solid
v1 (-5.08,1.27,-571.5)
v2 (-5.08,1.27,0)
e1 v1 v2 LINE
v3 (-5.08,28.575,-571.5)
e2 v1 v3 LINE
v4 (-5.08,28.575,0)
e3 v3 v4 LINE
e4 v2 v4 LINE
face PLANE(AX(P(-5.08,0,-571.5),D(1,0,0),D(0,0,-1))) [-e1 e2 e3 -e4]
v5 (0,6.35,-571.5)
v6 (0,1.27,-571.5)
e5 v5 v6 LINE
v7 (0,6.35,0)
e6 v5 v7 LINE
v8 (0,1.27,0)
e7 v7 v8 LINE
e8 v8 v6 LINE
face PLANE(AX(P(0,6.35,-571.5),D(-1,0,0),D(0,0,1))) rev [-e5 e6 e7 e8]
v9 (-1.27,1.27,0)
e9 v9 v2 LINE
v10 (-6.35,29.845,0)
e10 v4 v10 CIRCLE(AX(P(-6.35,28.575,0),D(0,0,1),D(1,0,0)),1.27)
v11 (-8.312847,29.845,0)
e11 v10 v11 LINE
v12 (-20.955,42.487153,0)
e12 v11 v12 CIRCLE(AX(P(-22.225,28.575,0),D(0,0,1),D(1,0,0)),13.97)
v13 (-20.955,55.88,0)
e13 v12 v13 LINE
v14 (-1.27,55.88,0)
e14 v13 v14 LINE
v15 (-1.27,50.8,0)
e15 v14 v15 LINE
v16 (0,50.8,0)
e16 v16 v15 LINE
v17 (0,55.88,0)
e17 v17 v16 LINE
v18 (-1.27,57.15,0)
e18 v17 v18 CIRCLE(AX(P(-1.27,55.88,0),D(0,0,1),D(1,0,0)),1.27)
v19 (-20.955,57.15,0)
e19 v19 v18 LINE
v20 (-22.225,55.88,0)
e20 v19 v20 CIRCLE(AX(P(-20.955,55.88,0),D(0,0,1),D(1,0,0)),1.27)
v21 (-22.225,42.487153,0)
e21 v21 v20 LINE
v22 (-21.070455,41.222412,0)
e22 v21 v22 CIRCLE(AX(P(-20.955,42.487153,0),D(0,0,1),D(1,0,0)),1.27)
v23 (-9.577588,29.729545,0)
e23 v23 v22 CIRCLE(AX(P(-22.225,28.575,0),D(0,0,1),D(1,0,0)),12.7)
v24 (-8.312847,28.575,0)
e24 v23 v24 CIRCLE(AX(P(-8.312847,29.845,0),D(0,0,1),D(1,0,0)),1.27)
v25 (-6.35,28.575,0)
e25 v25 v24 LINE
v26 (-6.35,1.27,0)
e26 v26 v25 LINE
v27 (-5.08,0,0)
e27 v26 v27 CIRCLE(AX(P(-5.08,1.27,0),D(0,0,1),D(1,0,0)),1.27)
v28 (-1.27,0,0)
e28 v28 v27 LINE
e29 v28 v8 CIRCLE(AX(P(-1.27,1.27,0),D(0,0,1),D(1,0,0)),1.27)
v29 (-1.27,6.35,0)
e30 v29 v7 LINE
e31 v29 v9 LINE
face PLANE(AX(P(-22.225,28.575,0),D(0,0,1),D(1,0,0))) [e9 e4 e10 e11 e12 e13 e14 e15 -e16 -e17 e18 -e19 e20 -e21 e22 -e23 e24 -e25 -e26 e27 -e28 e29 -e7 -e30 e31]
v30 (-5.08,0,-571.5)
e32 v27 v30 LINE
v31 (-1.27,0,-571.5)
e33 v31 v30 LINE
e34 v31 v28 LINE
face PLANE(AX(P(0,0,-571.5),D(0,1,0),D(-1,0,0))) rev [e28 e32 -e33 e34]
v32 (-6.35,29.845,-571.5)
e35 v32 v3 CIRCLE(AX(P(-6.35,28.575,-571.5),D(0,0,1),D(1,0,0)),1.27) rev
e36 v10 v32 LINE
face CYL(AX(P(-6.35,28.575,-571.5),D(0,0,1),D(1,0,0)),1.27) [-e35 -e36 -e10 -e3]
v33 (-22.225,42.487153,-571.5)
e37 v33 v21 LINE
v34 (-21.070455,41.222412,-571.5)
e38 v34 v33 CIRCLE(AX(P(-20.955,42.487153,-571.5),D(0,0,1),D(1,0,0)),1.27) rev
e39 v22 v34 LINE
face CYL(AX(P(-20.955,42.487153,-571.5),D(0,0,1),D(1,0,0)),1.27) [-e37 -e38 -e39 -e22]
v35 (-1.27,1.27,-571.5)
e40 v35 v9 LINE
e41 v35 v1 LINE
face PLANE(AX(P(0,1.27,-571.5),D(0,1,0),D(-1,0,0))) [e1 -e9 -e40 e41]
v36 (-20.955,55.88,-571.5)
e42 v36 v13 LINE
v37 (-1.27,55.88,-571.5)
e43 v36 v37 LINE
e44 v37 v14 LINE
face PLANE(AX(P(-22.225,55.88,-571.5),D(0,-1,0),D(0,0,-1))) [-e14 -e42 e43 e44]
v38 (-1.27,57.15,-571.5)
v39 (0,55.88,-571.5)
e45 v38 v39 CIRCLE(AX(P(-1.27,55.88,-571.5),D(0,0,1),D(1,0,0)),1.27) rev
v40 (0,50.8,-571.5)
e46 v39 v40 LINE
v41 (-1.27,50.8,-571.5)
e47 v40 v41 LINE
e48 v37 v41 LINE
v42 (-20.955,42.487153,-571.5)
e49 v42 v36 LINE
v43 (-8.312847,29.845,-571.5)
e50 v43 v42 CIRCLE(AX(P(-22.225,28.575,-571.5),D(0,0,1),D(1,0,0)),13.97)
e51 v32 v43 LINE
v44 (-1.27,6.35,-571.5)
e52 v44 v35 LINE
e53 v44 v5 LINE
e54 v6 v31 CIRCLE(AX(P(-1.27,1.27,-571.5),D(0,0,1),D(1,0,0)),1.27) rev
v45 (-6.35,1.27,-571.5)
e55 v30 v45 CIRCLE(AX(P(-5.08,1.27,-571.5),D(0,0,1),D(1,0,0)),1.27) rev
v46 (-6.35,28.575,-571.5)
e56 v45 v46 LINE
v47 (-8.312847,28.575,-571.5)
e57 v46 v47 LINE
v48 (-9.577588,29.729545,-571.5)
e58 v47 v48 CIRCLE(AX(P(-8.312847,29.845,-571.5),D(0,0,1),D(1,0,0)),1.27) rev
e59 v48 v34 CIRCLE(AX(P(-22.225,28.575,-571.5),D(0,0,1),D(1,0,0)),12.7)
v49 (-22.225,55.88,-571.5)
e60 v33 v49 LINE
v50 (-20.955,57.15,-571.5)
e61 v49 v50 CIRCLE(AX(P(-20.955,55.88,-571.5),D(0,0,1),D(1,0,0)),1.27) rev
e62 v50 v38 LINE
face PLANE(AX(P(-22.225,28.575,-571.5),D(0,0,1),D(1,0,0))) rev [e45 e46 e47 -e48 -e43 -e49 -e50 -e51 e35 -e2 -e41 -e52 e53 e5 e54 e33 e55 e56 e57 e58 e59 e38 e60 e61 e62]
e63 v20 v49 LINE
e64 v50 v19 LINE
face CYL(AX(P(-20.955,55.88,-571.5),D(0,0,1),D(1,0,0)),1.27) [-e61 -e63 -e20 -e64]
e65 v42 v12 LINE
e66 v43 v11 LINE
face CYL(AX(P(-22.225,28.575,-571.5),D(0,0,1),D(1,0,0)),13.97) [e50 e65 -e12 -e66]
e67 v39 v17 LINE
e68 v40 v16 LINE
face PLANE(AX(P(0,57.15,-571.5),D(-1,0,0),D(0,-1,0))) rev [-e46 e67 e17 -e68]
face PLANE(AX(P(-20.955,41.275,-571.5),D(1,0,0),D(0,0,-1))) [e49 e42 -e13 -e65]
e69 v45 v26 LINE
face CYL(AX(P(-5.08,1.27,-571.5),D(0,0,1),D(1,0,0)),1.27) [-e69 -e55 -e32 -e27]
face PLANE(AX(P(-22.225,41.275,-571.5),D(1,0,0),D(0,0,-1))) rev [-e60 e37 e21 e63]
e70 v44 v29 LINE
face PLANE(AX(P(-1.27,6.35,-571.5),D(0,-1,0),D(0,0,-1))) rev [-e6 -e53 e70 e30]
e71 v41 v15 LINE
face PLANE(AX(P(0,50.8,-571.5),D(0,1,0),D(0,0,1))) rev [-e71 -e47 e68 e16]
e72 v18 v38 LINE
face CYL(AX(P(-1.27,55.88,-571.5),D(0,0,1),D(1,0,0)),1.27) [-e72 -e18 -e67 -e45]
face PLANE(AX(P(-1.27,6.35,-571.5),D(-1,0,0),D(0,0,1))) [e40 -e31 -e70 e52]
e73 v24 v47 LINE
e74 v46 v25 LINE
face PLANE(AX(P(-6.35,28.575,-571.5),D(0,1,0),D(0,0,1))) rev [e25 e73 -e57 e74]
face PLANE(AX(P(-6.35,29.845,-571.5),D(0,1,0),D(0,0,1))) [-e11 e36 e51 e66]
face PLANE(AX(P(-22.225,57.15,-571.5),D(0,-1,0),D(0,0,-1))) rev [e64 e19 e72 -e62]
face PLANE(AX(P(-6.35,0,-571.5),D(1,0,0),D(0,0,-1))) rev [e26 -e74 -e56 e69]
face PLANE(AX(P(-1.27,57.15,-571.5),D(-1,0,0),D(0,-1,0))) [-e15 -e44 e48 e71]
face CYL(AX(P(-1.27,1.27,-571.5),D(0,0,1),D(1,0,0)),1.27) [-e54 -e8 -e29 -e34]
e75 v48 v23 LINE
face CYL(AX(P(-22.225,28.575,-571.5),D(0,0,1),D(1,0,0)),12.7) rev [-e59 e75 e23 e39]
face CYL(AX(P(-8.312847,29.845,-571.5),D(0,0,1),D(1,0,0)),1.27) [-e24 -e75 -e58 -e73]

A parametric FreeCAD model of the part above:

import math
import FreeCAD as App
import Part
import Sketcher

V = App.Vector
Q = App.Units.Quantity


def edges_at(feature, points):
    """Names of the edges that pass closest to the given points."""
    edges = feature.Shape.Edges
    near = lambda p: min(range(len(edges)), key=lambda i: edges[i].distToShape(Part.Vertex(*p))[0])
    return sorted({f"Edge{near(p) + 1}" for p in points})

doc = App.newDocument("Part")
body = doc.addObject("PartDesign::Body", "Body")

# Sketch on XY plane
sketch1 = body.newObject("Sketcher::SketchObject", "Sketch")
sketch1.AttachmentSupport = (doc.getObject("XY_Plane"), [""])
sketch1.MapMode = "FlatFace"
sketch1.addGeometry([
    Part.LineSegment(V(0, 0, 0), V(0, 6.35, 0)),  # 0
    Part.LineSegment(V(0, 6.35, 0), V(-1.27, 6.35, 0)),  # 1
    Part.LineSegment(V(-1.27, 6.35, 0), V(-1.27, 1.27, 0)),  # 2
    Part.LineSegment(V(-1.27, 1.27, 0), V(-5.08, 1.27, 0)),  # 3
    Part.LineSegment(V(-5.08, 1.27, 0), V(-5.08, 29.845, 0)),  # 4
    Part.LineSegment(V(-5.08, 29.845, 0), V(-8.312847, 29.845, 0)),  # 5
    Part.ArcOfCircle(Part.Circle(V(-22.225, 28.575, 0), V(0, 0, 1), 13.97), math.radians(5.215909), math.radians(84.784091)),  # 6
    Part.LineSegment(V(-20.955, 42.487153, 0), V(-20.955, 55.88, 0)),  # 7
    Part.LineSegment(V(-20.955, 55.88, 0), V(-1.27, 55.88, 0)),  # 8
    Part.LineSegment(V(-1.27, 55.88, 0), V(-1.27, 50.8, 0)),  # 9
    Part.LineSegment(V(-1.27, 50.8, 0), V(0, 50.8, 0)),  # 10
    Part.LineSegment(V(0, 50.8, 0), V(0, 57.15, 0)),  # 11
    Part.LineSegment(V(0, 57.15, 0), V(-22.225, 57.15, 0)),  # 12
    Part.LineSegment(V(-22.225, 57.15, 0), V(-22.225, 41.275, 0)),  # 13
    Part.ArcOfCircle(Part.Circle(V(-22.225, 28.575, 0), V(0, 0, 1), 12.7), math.radians(0), math.radians(90)),  # 14
    Part.LineSegment(V(-9.525, 28.575, 0), V(-6.35, 28.575, 0)),  # 15
    Part.LineSegment(V(-6.35, 28.575, 0), V(-6.35, 0, 0)),  # 16
    Part.LineSegment(V(-6.35, 0, 0), V(0, 0, 0)),  # 17
], False)
sketch1.addConstraint([
    Sketcher.Constraint("Coincident", 0, 2, 1, 1),
    Sketcher.Constraint("Coincident", 1, 2, 2, 1),
    Sketcher.Constraint("Coincident", 2, 2, 3, 1),
    Sketcher.Constraint("Coincident", 3, 2, 4, 1),
    Sketcher.Constraint("Coincident", 4, 2, 5, 1),
    Sketcher.Constraint("Coincident", 5, 2, 6, 1),
    Sketcher.Constraint("Coincident", 6, 2, 7, 1),
    Sketcher.Constraint("Coincident", 7, 2, 8, 1),
    Sketcher.Constraint("Coincident", 8, 2, 9, 1),
    Sketcher.Constraint("Coincident", 9, 2, 10, 1),
    Sketcher.Constraint("Coincident", 10, 2, 11, 1),
    Sketcher.Constraint("Coincident", 11, 2, 12, 1),
    Sketcher.Constraint("Coincident", 12, 2, 13, 1),
    Sketcher.Constraint("Coincident", 13, 2, 14, 2),
    Sketcher.Constraint("Coincident", 14, 1, 15, 1),
    Sketcher.Constraint("Coincident", 15, 2, 16, 1),
    Sketcher.Constraint("Coincident", 16, 2, 17, 1),
    Sketcher.Constraint("Coincident", 17, 2, 0, 1),
    Sketcher.Constraint("Vertical", 0),
    Sketcher.Constraint("Horizontal", 1),
    Sketcher.Constraint("Vertical", 2),
    Sketcher.Constraint("Horizontal", 3),
    Sketcher.Constraint("Vertical", 4),
    Sketcher.Constraint("Horizontal", 5),
    Sketcher.Constraint("Vertical", 7),
    Sketcher.Constraint("Horizontal", 8),
    Sketcher.Constraint("Vertical", 9),
    Sketcher.Constraint("Horizontal", 10),
    Sketcher.Constraint("Vertical", 11),
    Sketcher.Constraint("Horizontal", 12),
    Sketcher.Constraint("Vertical", 13),
    Sketcher.Constraint("Horizontal", 15),
    Sketcher.Constraint("Vertical", 16),
    Sketcher.Constraint("Horizontal", 17),
    Sketcher.Constraint("Coincident", 17, 2, -1, 1),
    Sketcher.Constraint("Coincident", 14, 3, 6, 3),
    Sketcher.Constraint("PointOnObject", 10, 2, -2),
    Sketcher.Constraint("Horizontal", 6, 3, 14, 1),
    Sketcher.Constraint("Vertical", 2, 2, 8, 2),
    Sketcher.Constraint("Vertical", 14, 3, 12, 2),
    Sketcher.Constraint("Equal", 17, 0),
    Sketcher.Constraint("Equal", 2, 9),
    Sketcher.Constraint("Equal", 0, 11),
    Sketcher.Constraint("Equal", 4, 16),
    Sketcher.Constraint("Radius", 14, Q("0.5 in")),
    Sketcher.Constraint("Radius", 6, Q("0.55 in")),
    Sketcher.Constraint("DistanceY", 2, 2, 2, 1, Q("0.2 in")),
    Sketcher.Constraint("DistanceY", -1, 1, 9, 2, Q("2 in")),
    Sketcher.Constraint("DistanceX", 1, 2, 1, 1, Q("0.05 in")),
    Sketcher.Constraint("DistanceX", 3, 2, 3, 1, Q("0.15 in")),
    Sketcher.Constraint("DistanceX", 17, 1, 17, 2, Q("0.25 in")),
    Sketcher.Constraint("DistanceX", 8, 1, 8, 2, Q("0.775 in")),
    Sketcher.Constraint("DistanceX", 12, 2, 12, 1, Q("0.875 in")),
    Sketcher.Constraint("DistanceY", 4, 1, 4, 2, Q("1.125 in")),
])
pad1 = body.newObject("PartDesign::Pad", "Pad")
pad1.Profile = sketch1
pad1.Length = Q("22.5 in")
pad1.Reversed = True
doc.recompute()

fillet = body.newObject("PartDesign::Fillet", "Fillet")
fillet.Base = (pad1, edges_at(pad1, [
    (-5.08, 29.845, -285.75),
    (0, 0, -285.75),
    (-6.35, 0, -285.75),
    (-9.525, 28.575, -285.75),
    (-22.225, 41.275, -285.75),
    (-22.225, 57.15, -285.75),
    (0, 57.15, -285.75),
]))
fillet.Radius = Q("0.05 in")

doc.recompute()
